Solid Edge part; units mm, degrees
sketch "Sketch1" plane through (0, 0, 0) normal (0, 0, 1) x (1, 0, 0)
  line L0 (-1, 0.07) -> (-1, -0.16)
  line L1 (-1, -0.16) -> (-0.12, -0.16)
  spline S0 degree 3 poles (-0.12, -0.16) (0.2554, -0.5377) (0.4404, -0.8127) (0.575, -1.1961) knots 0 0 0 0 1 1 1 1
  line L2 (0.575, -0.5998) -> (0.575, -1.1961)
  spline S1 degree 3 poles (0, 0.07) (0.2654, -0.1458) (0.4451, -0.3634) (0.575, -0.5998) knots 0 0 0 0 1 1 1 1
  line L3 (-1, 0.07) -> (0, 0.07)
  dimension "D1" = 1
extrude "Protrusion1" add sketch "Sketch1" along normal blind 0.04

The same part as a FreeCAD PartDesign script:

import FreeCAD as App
import Part
import Sketcher

V = App.Vector

doc = App.newDocument("Part")
body = doc.addObject("PartDesign::Body", "Body")

# Sketch on XY plane
sketch1 = body.newObject("Sketcher::SketchObject", "Sketch")
sketch1.AttachmentSupport = (doc.getObject("XY_Plane"), [""])
sketch1.MapMode = "FlatFace"
sketch1.addGeometry([
    Part.LineSegment(V(0, 0.07, 0), V(-1, 0.07, 0)),  # 0
    Part.LineSegment(V(-1, 0.07, 0), V(-1, -0.16, 0)),  # 1
    Part.LineSegment(V(-1, -0.16, 0), V(-0.12, -0.16, 0)),  # 2
    Part.BSplineCurve([V(-0.12, -0.16, 0), V(0.2554, -0.5377, 0), V(0.4404, -0.8127, 0), V(0.575, -1.1961, 0)], [4, 4], [0, 1], False, 3, [1, 1, 1, 1], False),  # 3
    Part.LineSegment(V(0.575, -1.1961, 0), V(0.575, -0.5998, 0)),  # 4
    Part.BSplineCurve([V(0, 0.07, 0), V(0.2654, -0.1458, 0), V(0.4451, -0.3634, 0), V(0.575, -0.5998, 0)], [4, 4], [0, 1], False, 3, [1, 1, 1, 1], False),  # 5
], False)
sketch1.addConstraint([
    Sketcher.Constraint("Block", 3),
    Sketcher.Constraint("Block", 5),
    Sketcher.Constraint("Coincident", 0, 2, 1, 1),
    Sketcher.Constraint("Coincident", 1, 2, 2, 1),
    Sketcher.Constraint("Coincident", 2, 2, 3, 1),
    Sketcher.Constraint("Coincident", 3, 2, 4, 1),
    Sketcher.Constraint("Coincident", 4, 2, 5, 2),
    Sketcher.Constraint("Coincident", 5, 1, 0, 1),
    Sketcher.Constraint("Horizontal", 0),
    Sketcher.Constraint("Vertical", 1),
    Sketcher.Constraint("Horizontal", 2),
    Sketcher.Constraint("DistanceX", 0, 2, 0, 1, 1.0),
])
pad1 = body.newObject("PartDesign::Pad", "Pad")
pad1.Profile = sketch1
pad1.Length = 0.04

doc.recompute()
